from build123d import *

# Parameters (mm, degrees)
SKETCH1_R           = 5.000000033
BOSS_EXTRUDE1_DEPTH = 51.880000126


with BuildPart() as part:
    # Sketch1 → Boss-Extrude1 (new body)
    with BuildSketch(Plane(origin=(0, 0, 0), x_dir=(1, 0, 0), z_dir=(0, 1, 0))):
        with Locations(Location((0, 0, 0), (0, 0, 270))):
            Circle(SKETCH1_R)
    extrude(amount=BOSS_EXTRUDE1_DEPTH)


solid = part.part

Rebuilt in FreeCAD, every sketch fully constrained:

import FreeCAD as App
import Part
import Sketcher
Q = App.Units.Quantity

doc = App.newDocument("Part")
body = doc.addObject("PartDesign::Body", "Body")

# Sketch on XZ plane
sketch1 = doc.addObject("Sketcher::SketchObject", "Sketch")
body.addObject(sketch1)
sketch1.AttachmentSupport = (doc.XZ_Plane, [""])
sketch1.MapMode = "FlatFace"
sketch1.addGeometry(Part.Circle(App.Vector(0, 0, 0), App.Vector(0, 0, 1), 5), False)
sketch1.addConstraint(Sketcher.Constraint("Coincident", 0, 3, -1, 1))
sketch1.addConstraint(Sketcher.Constraint("Diameter", 0, Q("10 mm")))
pad1 = doc.addObject("PartDesign::Pad", "Pad")
body.addObject(pad1)
pad1.Profile = sketch1
pad1.Length = 51.88
pad1.Reversed = True

doc.recompute()
